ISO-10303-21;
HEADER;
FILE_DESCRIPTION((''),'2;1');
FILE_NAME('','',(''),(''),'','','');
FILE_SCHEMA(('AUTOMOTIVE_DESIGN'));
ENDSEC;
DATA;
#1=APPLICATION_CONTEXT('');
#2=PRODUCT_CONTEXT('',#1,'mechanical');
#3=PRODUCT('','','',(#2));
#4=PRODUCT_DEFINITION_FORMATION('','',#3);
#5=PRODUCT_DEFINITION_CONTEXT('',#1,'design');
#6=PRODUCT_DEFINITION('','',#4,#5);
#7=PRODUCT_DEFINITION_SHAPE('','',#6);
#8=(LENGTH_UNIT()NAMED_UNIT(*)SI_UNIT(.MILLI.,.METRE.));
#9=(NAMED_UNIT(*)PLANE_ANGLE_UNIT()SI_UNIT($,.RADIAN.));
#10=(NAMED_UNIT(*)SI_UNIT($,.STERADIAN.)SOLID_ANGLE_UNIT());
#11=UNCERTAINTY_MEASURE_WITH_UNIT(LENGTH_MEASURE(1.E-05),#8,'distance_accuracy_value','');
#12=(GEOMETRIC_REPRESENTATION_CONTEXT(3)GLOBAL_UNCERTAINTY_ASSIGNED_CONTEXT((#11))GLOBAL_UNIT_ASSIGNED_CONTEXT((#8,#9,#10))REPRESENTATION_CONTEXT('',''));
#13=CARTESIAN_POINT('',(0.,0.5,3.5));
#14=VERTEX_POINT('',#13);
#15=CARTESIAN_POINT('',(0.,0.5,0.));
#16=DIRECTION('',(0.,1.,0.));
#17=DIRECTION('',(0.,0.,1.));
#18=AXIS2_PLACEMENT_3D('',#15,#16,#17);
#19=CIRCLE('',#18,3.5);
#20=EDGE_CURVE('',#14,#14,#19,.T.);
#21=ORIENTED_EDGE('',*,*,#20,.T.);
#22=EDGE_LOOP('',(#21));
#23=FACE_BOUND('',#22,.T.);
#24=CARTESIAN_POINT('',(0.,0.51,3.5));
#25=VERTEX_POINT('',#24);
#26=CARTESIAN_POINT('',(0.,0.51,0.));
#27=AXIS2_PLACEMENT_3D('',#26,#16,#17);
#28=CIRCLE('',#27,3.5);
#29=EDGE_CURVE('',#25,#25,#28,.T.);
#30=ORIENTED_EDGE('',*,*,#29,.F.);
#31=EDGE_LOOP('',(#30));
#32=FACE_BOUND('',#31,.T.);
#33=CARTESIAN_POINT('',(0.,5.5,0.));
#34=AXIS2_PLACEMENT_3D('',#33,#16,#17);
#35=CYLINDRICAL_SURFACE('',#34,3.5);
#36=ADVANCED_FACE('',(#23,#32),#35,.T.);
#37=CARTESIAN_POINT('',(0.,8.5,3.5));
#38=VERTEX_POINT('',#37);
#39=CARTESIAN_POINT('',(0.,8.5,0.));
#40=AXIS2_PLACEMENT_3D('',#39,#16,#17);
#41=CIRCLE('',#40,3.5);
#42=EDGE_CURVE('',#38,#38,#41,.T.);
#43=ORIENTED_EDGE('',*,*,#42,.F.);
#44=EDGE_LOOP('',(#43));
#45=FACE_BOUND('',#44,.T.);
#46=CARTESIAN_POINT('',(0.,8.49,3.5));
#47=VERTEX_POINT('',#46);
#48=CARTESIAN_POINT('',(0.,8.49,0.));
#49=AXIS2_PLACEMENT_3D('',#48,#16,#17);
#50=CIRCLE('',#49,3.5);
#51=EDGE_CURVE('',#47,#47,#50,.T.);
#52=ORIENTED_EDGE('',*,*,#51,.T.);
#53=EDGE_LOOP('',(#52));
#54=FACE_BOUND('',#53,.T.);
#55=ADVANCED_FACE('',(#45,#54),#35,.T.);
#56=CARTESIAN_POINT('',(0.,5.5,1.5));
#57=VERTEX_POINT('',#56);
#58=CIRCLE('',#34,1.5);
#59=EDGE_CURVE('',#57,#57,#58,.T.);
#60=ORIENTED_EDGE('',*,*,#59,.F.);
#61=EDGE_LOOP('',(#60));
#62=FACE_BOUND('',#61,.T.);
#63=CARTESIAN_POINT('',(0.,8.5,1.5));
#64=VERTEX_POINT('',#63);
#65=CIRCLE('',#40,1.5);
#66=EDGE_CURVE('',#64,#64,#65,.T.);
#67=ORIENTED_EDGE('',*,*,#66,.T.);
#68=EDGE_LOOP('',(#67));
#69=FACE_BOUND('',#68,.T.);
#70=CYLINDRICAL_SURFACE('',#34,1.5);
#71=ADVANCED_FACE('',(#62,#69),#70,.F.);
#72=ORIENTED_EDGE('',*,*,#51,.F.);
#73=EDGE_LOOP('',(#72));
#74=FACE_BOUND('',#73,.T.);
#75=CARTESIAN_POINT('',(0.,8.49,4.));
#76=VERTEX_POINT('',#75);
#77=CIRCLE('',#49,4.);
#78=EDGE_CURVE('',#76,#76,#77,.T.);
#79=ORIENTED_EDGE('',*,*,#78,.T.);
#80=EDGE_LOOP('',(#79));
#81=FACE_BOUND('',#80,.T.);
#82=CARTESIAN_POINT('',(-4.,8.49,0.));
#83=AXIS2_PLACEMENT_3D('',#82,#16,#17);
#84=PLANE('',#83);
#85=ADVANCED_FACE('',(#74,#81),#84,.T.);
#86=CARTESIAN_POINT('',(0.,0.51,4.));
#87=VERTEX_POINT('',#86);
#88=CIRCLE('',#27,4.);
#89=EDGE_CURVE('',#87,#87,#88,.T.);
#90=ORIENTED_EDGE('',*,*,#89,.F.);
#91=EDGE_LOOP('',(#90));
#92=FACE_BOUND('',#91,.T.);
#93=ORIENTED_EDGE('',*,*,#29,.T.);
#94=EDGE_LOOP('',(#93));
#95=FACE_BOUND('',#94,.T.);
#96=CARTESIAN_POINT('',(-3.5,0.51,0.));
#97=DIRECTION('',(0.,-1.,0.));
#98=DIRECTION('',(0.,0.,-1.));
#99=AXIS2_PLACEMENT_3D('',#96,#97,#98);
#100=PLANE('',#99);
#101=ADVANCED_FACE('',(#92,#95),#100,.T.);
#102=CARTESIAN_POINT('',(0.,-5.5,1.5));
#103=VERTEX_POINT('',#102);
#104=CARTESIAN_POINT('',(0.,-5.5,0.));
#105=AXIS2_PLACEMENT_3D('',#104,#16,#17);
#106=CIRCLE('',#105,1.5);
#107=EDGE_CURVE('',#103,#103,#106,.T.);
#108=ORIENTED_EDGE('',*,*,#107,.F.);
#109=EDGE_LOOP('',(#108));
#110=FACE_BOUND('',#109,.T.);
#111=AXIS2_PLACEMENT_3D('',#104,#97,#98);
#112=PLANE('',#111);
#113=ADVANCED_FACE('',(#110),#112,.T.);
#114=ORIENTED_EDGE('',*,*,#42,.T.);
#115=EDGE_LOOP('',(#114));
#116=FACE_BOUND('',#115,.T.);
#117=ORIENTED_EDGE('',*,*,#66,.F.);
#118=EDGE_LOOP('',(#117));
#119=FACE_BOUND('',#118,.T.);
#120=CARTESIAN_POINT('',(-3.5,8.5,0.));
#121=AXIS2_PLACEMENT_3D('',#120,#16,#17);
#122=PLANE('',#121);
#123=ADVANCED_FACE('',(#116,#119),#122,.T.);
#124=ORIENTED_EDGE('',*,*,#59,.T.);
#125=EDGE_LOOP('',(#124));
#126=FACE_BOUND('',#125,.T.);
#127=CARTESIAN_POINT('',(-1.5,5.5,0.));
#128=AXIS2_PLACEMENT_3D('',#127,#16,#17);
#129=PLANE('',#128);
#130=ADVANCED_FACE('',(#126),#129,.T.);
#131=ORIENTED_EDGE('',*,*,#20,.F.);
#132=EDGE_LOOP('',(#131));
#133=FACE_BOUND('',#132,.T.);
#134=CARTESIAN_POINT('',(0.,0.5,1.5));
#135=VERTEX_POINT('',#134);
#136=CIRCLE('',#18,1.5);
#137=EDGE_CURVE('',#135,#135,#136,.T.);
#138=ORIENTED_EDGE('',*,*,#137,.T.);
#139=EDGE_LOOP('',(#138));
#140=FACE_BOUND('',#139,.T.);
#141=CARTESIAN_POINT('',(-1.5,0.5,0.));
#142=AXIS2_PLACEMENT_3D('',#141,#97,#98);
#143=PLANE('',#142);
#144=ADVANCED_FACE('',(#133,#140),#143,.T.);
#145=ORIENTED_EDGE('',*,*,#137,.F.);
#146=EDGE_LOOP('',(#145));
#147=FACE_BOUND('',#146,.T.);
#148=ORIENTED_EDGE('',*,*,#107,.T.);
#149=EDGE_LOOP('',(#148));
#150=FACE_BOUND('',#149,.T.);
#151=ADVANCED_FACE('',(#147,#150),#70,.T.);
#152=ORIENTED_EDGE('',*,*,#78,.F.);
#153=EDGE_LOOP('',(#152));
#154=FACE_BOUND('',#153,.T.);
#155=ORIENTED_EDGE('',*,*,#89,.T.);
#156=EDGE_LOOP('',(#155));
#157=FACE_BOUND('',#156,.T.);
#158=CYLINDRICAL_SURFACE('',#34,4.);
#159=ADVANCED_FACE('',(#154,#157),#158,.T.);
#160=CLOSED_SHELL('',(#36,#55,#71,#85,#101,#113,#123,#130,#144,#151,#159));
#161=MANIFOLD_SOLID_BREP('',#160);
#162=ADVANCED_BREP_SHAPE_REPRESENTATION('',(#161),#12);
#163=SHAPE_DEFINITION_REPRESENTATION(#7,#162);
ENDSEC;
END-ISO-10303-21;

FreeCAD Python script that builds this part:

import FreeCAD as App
import Part
import Sketcher

doc = App.newDocument("Part")
body = doc.addObject("PartDesign::Body", "Body")

sketch1 = body.newObject("Sketcher::SketchObject", "Sketch")
sketch1.AttachmentSupport = (doc.getObject("XY_Plane"), [""])
sketch1.MapMode = "FlatFace"
sketch1.addGeometry([
    Part.LineSegment(App.Vector(-1.5, -5.5, 0), App.Vector(0, -5.5, 0)),
    Part.LineSegment(App.Vector(0, -5.5, 0), App.Vector(0, 5.5, 0)),
    Part.LineSegment(App.Vector(0, 5.5, 0), App.Vector(-1.5, 5.5, 0)),
    Part.LineSegment(App.Vector(-1.5, 5.5, 0), App.Vector(-1.5, 8.5, 0)),
    Part.LineSegment(App.Vector(-1.5, 8.5, 0), App.Vector(-3.5, 8.5, 0)),
    Part.LineSegment(App.Vector(-3.5, 8.5, 0), App.Vector(-3.5, 8.49, 0)),
    Part.LineSegment(App.Vector(-3.5, 8.49, 0), App.Vector(-4, 8.49, 0)),
    Part.LineSegment(App.Vector(-4, 8.49, 0), App.Vector(-4, 0.51, 0)),
    Part.LineSegment(App.Vector(-4, 0.51, 0), App.Vector(-3.5, 0.51, 0)),
    Part.LineSegment(App.Vector(-3.5, 0.51, 0), App.Vector(-3.5, 0.5, 0)),
    Part.LineSegment(App.Vector(-3.5, 0.5, 0), App.Vector(-1.5, 0.5, 0)),
    Part.LineSegment(App.Vector(-1.5, 0.5, 0), App.Vector(-1.5, -5.5, 0)),
], False)
sketch1.addConstraint([
    Sketcher.Constraint("Coincident", 0, 2, 1, 1),
    Sketcher.Constraint("Coincident", 1, 2, 2, 1),
    Sketcher.Constraint("Coincident", 2, 2, 3, 1),
    Sketcher.Constraint("Coincident", 3, 2, 4, 1),
    Sketcher.Constraint("Coincident", 4, 2, 5, 1),
    Sketcher.Constraint("Coincident", 5, 2, 6, 1),
    Sketcher.Constraint("Coincident", 6, 2, 7, 1),
    Sketcher.Constraint("Coincident", 7, 2, 8, 1),
    Sketcher.Constraint("Coincident", 8, 2, 9, 1),
    Sketcher.Constraint("Coincident", 9, 2, 10, 1),
    Sketcher.Constraint("Coincident", 10, 2, 11, 1),
    Sketcher.Constraint("Coincident", 11, 2, 0, 1),
    Sketcher.Constraint("Horizontal", 0),
    Sketcher.Constraint("Vertical", 1),
    Sketcher.Constraint("Horizontal", 2),
    Sketcher.Constraint("Vertical", 3),
    Sketcher.Constraint("Horizontal", 4),
    Sketcher.Constraint("Vertical", 5),
    Sketcher.Constraint("Horizontal", 6),
    Sketcher.Constraint("Vertical", 7),
    Sketcher.Constraint("Horizontal", 8),
    Sketcher.Constraint("Vertical", 9),
    Sketcher.Constraint("Horizontal", 10),
    Sketcher.Constraint("Vertical", 11),
    Sketcher.Constraint("Symmetric", 0, 2, 1, 2, -1, 1),
    Sketcher.Constraint("Vertical", 5, 2, 8, 2),
    Sketcher.Constraint("Vertical", 3, 2, 10, 2),
    Sketcher.Constraint("Equal", 5, 9),
    Sketcher.Constraint("DistanceX", 4, 2, 4, 1, 2.0),
    Sketcher.Constraint("DistanceY", 1, 1, 1, 2, 11.0),
    Sketcher.Constraint("DistanceY", 3, 1, 3, 2, 3.0),
    Sketcher.Constraint("DistanceY", 11, 2, 11, 1, 6.0),
    Sketcher.Constraint("DistanceX", 0, 1, 0, 2, 1.5),
    Sketcher.Constraint("DistanceX", 6, 2, 6, 1, 0.5),
    Sketcher.Constraint("DistanceY", 5, 2, 5, 1, 0.01),
])
revolution = body.newObject("PartDesign::Revolution", "Revolution")
revolution.Profile = sketch1
revolution.ReferenceAxis = (sketch1, ["V_Axis"])
revolution.Angle = 360

doc.recompute()
